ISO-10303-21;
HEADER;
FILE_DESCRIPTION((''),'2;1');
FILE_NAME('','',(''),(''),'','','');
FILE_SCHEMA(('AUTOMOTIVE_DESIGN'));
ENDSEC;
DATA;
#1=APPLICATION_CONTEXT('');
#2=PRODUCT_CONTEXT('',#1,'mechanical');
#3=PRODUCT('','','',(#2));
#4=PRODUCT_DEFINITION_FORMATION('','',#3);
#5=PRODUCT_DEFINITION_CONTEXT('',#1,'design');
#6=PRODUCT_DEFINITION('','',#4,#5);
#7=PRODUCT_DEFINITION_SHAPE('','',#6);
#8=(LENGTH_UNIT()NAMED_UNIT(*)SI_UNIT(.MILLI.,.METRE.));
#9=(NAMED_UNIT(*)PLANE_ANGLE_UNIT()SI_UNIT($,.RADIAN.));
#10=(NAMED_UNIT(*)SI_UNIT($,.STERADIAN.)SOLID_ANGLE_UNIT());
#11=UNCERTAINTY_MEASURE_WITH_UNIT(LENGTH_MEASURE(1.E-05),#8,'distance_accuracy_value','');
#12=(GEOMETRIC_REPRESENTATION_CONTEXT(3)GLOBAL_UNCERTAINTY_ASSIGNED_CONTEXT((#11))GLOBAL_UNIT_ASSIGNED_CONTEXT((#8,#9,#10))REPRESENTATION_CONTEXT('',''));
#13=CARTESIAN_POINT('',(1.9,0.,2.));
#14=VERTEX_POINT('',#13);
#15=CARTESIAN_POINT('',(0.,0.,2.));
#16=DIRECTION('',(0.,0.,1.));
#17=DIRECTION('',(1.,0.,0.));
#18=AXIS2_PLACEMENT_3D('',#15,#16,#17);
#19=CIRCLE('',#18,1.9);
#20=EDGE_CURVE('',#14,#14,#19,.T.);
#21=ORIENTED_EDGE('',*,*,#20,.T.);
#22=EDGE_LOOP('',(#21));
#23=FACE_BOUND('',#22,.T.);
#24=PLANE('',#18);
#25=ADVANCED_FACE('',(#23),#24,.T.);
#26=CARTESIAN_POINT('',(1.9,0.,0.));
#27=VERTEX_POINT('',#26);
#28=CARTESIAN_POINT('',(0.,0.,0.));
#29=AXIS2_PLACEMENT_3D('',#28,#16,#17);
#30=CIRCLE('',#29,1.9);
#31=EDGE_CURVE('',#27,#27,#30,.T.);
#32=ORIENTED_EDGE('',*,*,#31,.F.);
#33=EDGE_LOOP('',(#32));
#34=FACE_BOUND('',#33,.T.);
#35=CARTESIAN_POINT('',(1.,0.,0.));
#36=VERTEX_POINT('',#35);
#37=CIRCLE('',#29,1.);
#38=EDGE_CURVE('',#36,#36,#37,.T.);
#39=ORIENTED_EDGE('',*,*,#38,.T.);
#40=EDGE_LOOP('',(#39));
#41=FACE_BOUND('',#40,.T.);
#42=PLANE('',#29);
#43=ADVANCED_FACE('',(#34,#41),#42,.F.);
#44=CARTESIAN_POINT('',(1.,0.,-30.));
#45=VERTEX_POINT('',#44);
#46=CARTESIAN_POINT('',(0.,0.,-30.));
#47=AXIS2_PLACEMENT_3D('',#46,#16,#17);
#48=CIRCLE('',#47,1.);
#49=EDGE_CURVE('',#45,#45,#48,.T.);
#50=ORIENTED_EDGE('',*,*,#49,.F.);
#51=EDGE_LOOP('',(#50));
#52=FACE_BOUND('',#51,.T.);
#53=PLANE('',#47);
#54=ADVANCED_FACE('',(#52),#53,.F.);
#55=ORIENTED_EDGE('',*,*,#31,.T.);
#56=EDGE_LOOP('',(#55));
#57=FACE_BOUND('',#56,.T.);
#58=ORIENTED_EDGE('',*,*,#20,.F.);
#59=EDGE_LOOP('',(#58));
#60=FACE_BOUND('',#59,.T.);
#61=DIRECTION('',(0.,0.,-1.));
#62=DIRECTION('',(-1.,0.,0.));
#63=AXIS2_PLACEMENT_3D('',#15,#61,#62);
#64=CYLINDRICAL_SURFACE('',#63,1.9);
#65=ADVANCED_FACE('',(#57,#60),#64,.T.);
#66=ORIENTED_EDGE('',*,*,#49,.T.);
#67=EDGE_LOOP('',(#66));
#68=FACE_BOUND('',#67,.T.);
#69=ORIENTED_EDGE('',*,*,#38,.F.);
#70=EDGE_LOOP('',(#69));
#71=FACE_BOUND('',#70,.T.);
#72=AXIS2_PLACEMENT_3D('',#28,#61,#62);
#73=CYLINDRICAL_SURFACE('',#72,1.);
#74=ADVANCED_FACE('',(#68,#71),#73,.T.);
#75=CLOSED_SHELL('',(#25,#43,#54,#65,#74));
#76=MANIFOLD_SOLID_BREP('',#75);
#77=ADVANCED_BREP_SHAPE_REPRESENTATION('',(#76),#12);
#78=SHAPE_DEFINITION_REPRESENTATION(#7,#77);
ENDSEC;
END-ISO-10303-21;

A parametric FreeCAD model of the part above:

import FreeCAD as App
import Part
import Sketcher
from FreeCAD import Vector

doc = App.newDocument("Part")
body = doc.addObject("PartDesign::Body", "Body")

sketch1 = body.newObject("Sketcher::SketchObject", "Sketch")
sketch1.AttachmentSupport = (doc.getObject("XY_Plane"), [""])
sketch1.MapMode = "FlatFace"
sketch1.AttachmentOffset = App.Placement(Vector(0, 0, -30), App.Rotation())
sketch1.addGeometry(Part.Circle(Vector(0, 0, 0), Vector(0, 0, 1), 1), False)
sketch1.addConstraint([
    Sketcher.Constraint("Coincident", 0, 3, -1, 1),
    Sketcher.Constraint("Diameter", 0, 2.0),
])
pad1 = body.newObject("PartDesign::Pad", "Pad")
pad1.Profile = sketch1
pad1.Length = 30

sketch2 = body.newObject("Sketcher::SketchObject", "Sketch001")
sketch2.AttachmentSupport = (doc.getObject("XY_Plane"), [""])
sketch2.MapMode = "FlatFace"
sketch2.addGeometry(Part.Circle(Vector(0, 0, 0), Vector(0, 0, 1), 1.9), False)
sketch2.addConstraint([
    Sketcher.Constraint("Coincident", 0, 3, -1, 1),
    Sketcher.Constraint("Diameter", 0, 3.8),
])
pad2 = body.newObject("PartDesign::Pad", "Pad001")
pad2.Profile = sketch2
pad2.Length = 2

doc.recompute()
